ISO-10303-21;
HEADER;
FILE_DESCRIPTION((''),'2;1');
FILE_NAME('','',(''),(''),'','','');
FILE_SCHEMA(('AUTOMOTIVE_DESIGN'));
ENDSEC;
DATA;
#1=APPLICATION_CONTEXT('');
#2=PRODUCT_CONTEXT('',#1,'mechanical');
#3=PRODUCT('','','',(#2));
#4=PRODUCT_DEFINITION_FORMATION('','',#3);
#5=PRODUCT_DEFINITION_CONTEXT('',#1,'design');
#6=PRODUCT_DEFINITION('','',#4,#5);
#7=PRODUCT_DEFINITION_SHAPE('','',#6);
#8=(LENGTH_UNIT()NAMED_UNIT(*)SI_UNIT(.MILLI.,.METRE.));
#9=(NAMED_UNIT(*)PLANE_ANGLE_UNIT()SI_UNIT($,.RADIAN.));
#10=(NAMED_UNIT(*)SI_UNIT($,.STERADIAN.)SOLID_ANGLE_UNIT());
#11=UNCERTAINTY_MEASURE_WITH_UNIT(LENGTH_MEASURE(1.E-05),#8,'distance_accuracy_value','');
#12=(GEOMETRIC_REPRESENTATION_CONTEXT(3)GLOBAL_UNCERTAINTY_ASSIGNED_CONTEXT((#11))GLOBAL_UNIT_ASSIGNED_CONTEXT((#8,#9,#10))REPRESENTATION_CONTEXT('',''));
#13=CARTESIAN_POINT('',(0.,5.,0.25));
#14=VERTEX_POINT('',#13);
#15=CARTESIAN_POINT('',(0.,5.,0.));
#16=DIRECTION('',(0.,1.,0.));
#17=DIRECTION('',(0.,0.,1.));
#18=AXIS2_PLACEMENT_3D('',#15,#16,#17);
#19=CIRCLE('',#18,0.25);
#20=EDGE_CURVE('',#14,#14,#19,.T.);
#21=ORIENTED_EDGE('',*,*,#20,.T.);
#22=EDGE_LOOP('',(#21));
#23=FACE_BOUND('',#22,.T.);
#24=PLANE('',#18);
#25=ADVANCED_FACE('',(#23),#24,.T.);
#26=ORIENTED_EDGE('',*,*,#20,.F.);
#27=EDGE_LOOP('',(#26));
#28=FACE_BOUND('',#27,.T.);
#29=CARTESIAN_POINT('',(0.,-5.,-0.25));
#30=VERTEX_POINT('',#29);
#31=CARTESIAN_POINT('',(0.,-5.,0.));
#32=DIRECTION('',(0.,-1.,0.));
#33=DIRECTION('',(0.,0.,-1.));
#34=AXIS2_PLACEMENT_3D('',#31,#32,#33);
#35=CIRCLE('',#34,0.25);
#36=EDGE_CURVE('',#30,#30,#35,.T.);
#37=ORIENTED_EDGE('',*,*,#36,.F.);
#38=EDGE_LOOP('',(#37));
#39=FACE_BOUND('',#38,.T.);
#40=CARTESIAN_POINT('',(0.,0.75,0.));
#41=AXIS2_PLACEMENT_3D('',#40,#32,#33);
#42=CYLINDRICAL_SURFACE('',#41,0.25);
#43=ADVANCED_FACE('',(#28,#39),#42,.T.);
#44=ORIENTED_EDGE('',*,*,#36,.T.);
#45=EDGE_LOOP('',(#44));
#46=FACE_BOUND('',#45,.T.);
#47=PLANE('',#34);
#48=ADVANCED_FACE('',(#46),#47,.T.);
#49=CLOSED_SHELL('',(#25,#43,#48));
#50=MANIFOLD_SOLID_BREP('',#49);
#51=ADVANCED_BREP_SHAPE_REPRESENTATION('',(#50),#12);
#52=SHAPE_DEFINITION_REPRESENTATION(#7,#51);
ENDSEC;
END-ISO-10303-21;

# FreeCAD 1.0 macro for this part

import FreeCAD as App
import Part
import Sketcher
Q = App.Units.Quantity

doc = App.newDocument("Part")
body = doc.addObject("PartDesign::Body", "Body")

# Sketch on XZ plane
sketch1 = body.newObject("Sketcher::SketchObject", "Sketch")
sketch1.AttachmentSupport = (doc.getObject("XZ_Plane"), [""])
sketch1.MapMode = "FlatFace"
sketch1.addGeometry(Part.Circle(App.Vector(0, 0, 0), App.Vector(0, 0, 1), 0.25), False)
sketch1.addConstraint([
    Sketcher.Constraint("Coincident", 0, 3, -1, 1),
    Sketcher.Constraint("Diameter", 0, Q("0.5 mm")),
])
pad1 = body.newObject("PartDesign::Pad", "Pad")
pad1.Profile = sketch1
pad1.Length = 1.5
pad1.Midplane = True

# Sketch on XZ plane
sketch2 = body.newObject("Sketcher::SketchObject", "Sketch001")
sketch2.AttachmentSupport = (doc.getObject("XZ_Plane"), [""])
sketch2.MapMode = "FlatFace"
sketch2.AttachmentOffset = App.Placement(App.Vector(0, 0, -0.75), App.Rotation())
sketch2.addGeometry(Part.Circle(App.Vector(0, 0, 0), App.Vector(0, 0, 1), 0.25), False)
sketch2.addConstraint([
    Sketcher.Constraint("Coincident", 0, 3, -1, 1),
    Sketcher.Constraint("Diameter", 0, Q("0.5 mm")),
])
pad2 = body.newObject("PartDesign::Pad", "Pad001")
pad2.Profile = sketch2
pad2.Length = 4.25
pad2.Reversed = True

# Sketch on XZ plane
sketch3 = body.newObject("Sketcher::SketchObject", "Sketch002")
sketch3.AttachmentSupport = (doc.getObject("XZ_Plane"), [""])
sketch3.MapMode = "FlatFace"
sketch3.AttachmentOffset = App.Placement(App.Vector(0, 0, 0.75), App.Rotation())
sketch3.addGeometry(Part.Circle(App.Vector(0, 0, 0), App.Vector(0, 0, 1), 0.25), False)
sketch3.addConstraint([
    Sketcher.Constraint("Coincident", 0, 3, -1, 1),
    Sketcher.Constraint("Diameter", 0, Q("0.5 mm")),
])
pad3 = body.newObject("PartDesign::Pad", "Pad002")
pad3.Profile = sketch3
pad3.Length = 4.25

doc.recompute()
